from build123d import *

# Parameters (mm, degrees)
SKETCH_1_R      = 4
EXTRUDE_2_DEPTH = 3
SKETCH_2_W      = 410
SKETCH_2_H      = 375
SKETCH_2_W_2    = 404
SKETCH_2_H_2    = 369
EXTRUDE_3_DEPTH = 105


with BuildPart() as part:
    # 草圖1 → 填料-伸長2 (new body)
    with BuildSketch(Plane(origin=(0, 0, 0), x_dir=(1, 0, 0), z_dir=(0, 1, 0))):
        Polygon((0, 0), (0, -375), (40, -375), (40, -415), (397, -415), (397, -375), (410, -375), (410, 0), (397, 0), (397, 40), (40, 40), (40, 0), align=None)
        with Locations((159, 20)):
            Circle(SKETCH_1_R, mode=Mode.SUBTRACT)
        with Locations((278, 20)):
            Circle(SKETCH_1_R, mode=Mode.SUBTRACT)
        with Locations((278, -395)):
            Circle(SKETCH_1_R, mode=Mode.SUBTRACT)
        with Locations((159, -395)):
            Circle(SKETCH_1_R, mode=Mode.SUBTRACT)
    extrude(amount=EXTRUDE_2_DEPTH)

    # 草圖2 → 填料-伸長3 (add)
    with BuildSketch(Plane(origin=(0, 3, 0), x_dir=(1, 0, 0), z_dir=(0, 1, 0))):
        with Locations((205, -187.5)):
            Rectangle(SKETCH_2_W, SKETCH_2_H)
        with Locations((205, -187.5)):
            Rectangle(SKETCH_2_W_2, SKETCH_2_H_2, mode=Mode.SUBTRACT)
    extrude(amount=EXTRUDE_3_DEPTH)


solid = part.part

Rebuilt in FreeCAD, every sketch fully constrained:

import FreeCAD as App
import Part
import Sketcher

V = App.Vector


def add_polygon(sketch, points):
    """Adds a closed chain of lines whose ends are joined by coincident constraints."""
    first, n = sketch.GeometryCount, len(points)
    for a, b in zip(points, points[1:] + points[:1]):
        sketch.addGeometry(Part.LineSegment(App.Vector(*a, 0), App.Vector(*b, 0)), False)
    for i in range(n):
        sketch.addConstraint(Sketcher.Constraint("Coincident", first + i, 2, first + (i + 1) % n, 1))

doc = App.newDocument("Part")
params = doc.addObject("Spreadsheet::Sheet", "Params")
for row, (alias, value) in enumerate([
    ("sketch1_diameter", "8 mm"),
    ("sketch1_width", "40 mm"),
    ("sketch1_width2", "357 mm"),
    ("sketch1_width3", "13 mm"),
    ("sketch1_height", "375 mm"),
    ("pad1_length", "3 mm"),
    ("sketch2_width", "410 mm"),
    ("sketch2_width2", "404 mm"),
    ("sketch2_height", "375 mm"),
    ("sketch2_height2", "369 mm"),
    ("pad2_length", "105 mm"),
], start=1):
    params.set(f"A{row}", alias)
    params.set(f"B{row}", "=" + value)
    params.setAlias(f"B{row}", alias)

body = doc.addObject("PartDesign::Body", "Body")

# Sketch on XZ plane
sketch1 = body.newObject("Sketcher::SketchObject", "Sketch")
sketch1.AttachmentSupport = (doc.getObject("XZ_Plane"), [""])
sketch1.MapMode = "FlatFace"
add_polygon(sketch1, [(0, 0), (0, 375), (40, 375), (40, 415), (397, 415), (397, 375), (410, 375), (410, 0), (397, 0), (397, -40), (40, -40), (40, 0)])  # lines 0-11
sketch1.addGeometry(Part.Circle(V(159, 395, 0), V(0, 0, 1), 4), False)  # 12
sketch1.addGeometry(Part.Circle(V(278, 395, 0), V(0, 0, 1), 4), False)  # 13
sketch1.addGeometry(Part.Circle(V(159, -20, 0), V(0, 0, 1), 4), False)  # 14
sketch1.addGeometry(Part.Circle(V(278, -20, 0), V(0, 0, 1), 4), False)  # 15
sketch1.addConstraint(Sketcher.Constraint("Vertical", 0))
sketch1.addConstraint(Sketcher.Constraint("Horizontal", 1))
sketch1.addConstraint(Sketcher.Constraint("Vertical", 2))
sketch1.addConstraint(Sketcher.Constraint("Horizontal", 3))
sketch1.addConstraint(Sketcher.Constraint("Vertical", 4))
sketch1.addConstraint(Sketcher.Constraint("Horizontal", 5))
sketch1.addConstraint(Sketcher.Constraint("Vertical", 6))
sketch1.addConstraint(Sketcher.Constraint("Horizontal", 7))
sketch1.addConstraint(Sketcher.Constraint("Vertical", 8))
sketch1.addConstraint(Sketcher.Constraint("Horizontal", 9))
sketch1.addConstraint(Sketcher.Constraint("Vertical", 10))
sketch1.addConstraint(Sketcher.Constraint("Horizontal", 11))
sketch1.addConstraint(Sketcher.Constraint("Coincident", 11, 2, -1, 1))
sketch1.addConstraint(Sketcher.Constraint("Equal", 12, 13))
sketch1.addConstraint(Sketcher.Constraint("Equal", 13, 14))
sketch1.addConstraint(Sketcher.Constraint("Equal", 14, 15))
sketch1.addConstraint(Sketcher.Constraint("PointOnObject", 6, 2, -1))
sketch1.addConstraint(Sketcher.Constraint("Horizontal", 12, 3, 13, 3))
sketch1.addConstraint(Sketcher.Constraint("Horizontal", 14, 3, 15, 3))
sketch1.addConstraint(Sketcher.Constraint("Horizontal", 1, 2, 4, 2))
sketch1.addConstraint(Sketcher.Constraint("Vertical", 12, 3, 14, 3))
sketch1.addConstraint(Sketcher.Constraint("Vertical", 13, 3, 15, 3))
sketch1.addConstraint(Sketcher.Constraint("Vertical", 4, 2, 7, 2))
sketch1.addConstraint(Sketcher.Constraint("Vertical", 2, 2, 9, 2))
sketch1.addConstraint(Sketcher.Constraint("Equal", 11, 2))
sketch1.addConstraint(Sketcher.Constraint("Equal", 4, 8))
sketch1.addConstraint(Sketcher.Constraint("Diameter", 12, 8.0))
sketch1.addConstraint(Sketcher.Constraint("DistanceX", 1, 1, 1, 2, 40.0))
sketch1.addConstraint(Sketcher.Constraint("DistanceX", 3, 1, 3, 2, 357.0))
sketch1.addConstraint(Sketcher.Constraint("DistanceX", 5, 1, 5, 2, 13.0))
sketch1.addConstraint(Sketcher.Constraint("DistanceY", 0, 1, 0, 2, 375.0))
sketch1.addConstraint(Sketcher.Constraint("DistanceX", -1, 1, 12, 3, 159.0))
sketch1.addConstraint(Sketcher.Constraint("DistanceY", -1, 1, 12, 3, 395.0))
sketch1.addConstraint(Sketcher.Constraint("DistanceX", -1, 1, 13, 3, 278.0))
sketch1.addConstraint(Sketcher.Constraint("DistanceY", 14, 3, -1, 1, 20.0))
sketch1.setExpression("Constraints[38]", "Params.sketch1_diameter")
sketch1.setExpression("Constraints[39]", "Params.sketch1_width")
sketch1.setExpression("Constraints[40]", "Params.sketch1_width2")
sketch1.setExpression("Constraints[41]", "Params.sketch1_width3")
sketch1.setExpression("Constraints[42]", "Params.sketch1_height")
pad1 = body.newObject("PartDesign::Pad", "Pad")
pad1.Profile = sketch1
pad1.setExpression("Length", "Params.pad1_length")
pad1.Reversed = True

# Sketch on XZ plane
sketch2 = body.newObject("Sketcher::SketchObject", "Sketch001")
sketch2.AttachmentSupport = (doc.getObject("XZ_Plane"), [""])
sketch2.MapMode = "FlatFace"
sketch2.AttachmentOffset = App.Placement(V(0, 0, -3), App.Rotation())
add_polygon(sketch2, [(0, 0), (0, 375), (410, 375), (410, 0)])  # lines 0-3
add_polygon(sketch2, [(407, 372), (3, 372), (3, 3), (407, 3)])  # lines 4-7
sketch2.addConstraint(Sketcher.Constraint("Vertical", 0))
sketch2.addConstraint(Sketcher.Constraint("Horizontal", 1))
sketch2.addConstraint(Sketcher.Constraint("Vertical", 2))
sketch2.addConstraint(Sketcher.Constraint("Horizontal", 3))
sketch2.addConstraint(Sketcher.Constraint("Horizontal", 4))
sketch2.addConstraint(Sketcher.Constraint("Vertical", 5))
sketch2.addConstraint(Sketcher.Constraint("Horizontal", 6))
sketch2.addConstraint(Sketcher.Constraint("Vertical", 7))
sketch2.addConstraint(Sketcher.Constraint("Coincident", 3, 2, -1, 1))
sketch2.addConstraint(Sketcher.Constraint("DistanceX", 1, 1, 1, 2, 410.0))
sketch2.addConstraint(Sketcher.Constraint("DistanceX", 4, 2, 4, 1, 404.0))
sketch2.addConstraint(Sketcher.Constraint("DistanceY", 0, 1, 0, 2, 375.0))
sketch2.addConstraint(Sketcher.Constraint("DistanceY", 5, 2, 5, 1, 369.0))
sketch2.addConstraint(Sketcher.Constraint("DistanceX", -1, 1, 4, 2, 3.0))
sketch2.addConstraint(Sketcher.Constraint("DistanceY", -1, 1, 4, 2, 372.0))
sketch2.setExpression("Constraints[17]", "Params.sketch2_width")
sketch2.setExpression("Constraints[18]", "Params.sketch2_width2")
sketch2.setExpression("Constraints[19]", "Params.sketch2_height")
sketch2.setExpression("Constraints[20]", "Params.sketch2_height2")
pad2 = body.newObject("PartDesign::Pad", "Pad001")
pad2.Profile = sketch2
pad2.setExpression("Length", "Params.pad2_length")
pad2.Reversed = True

doc.recompute()
